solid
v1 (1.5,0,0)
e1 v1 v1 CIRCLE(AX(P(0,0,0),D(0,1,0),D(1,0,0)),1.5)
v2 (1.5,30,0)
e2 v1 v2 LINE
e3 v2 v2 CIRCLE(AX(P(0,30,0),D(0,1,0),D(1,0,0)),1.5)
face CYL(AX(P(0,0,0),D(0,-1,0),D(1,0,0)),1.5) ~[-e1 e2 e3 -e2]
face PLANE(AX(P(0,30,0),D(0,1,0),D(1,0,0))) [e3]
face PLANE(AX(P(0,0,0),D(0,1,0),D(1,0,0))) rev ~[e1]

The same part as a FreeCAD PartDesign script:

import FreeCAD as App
import Part
import Sketcher

V = App.Vector

doc = App.newDocument("Part")
params = doc.addObject("Spreadsheet::Sheet", "Params")
for row, (alias, value) in enumerate([
    ("sketch1_diameter", "3 mm"),
    ("pad1_length", "30 mm"),
], start=1):
    params.set(f"A{row}", alias)
    params.set(f"B{row}", "=" + value)
    params.setAlias(f"B{row}", alias)

body = doc.addObject("PartDesign::Body", "Body")

sketch1 = body.newObject("Sketcher::SketchObject", "Sketch")
sketch1.AttachmentSupport = (doc.getObject("XZ_Plane"), [""])
sketch1.MapMode = "FlatFace"
sketch1.addGeometry(Part.Circle(V(0, 0, 0), V(0, 0, 1), 1.5), False)
sketch1.addConstraint(Sketcher.Constraint("Coincident", 0, 3, -1, 1))
sketch1.addConstraint(Sketcher.Constraint("Diameter", 0, 3.0))
sketch1.setExpression("Constraints[1]", "Params.sketch1_diameter")
pad1 = body.newObject("PartDesign::Pad", "Pad")
pad1.Profile = sketch1
pad1.setExpression("Length", "Params.pad1_length")
pad1.Reversed = True

doc.recompute()
